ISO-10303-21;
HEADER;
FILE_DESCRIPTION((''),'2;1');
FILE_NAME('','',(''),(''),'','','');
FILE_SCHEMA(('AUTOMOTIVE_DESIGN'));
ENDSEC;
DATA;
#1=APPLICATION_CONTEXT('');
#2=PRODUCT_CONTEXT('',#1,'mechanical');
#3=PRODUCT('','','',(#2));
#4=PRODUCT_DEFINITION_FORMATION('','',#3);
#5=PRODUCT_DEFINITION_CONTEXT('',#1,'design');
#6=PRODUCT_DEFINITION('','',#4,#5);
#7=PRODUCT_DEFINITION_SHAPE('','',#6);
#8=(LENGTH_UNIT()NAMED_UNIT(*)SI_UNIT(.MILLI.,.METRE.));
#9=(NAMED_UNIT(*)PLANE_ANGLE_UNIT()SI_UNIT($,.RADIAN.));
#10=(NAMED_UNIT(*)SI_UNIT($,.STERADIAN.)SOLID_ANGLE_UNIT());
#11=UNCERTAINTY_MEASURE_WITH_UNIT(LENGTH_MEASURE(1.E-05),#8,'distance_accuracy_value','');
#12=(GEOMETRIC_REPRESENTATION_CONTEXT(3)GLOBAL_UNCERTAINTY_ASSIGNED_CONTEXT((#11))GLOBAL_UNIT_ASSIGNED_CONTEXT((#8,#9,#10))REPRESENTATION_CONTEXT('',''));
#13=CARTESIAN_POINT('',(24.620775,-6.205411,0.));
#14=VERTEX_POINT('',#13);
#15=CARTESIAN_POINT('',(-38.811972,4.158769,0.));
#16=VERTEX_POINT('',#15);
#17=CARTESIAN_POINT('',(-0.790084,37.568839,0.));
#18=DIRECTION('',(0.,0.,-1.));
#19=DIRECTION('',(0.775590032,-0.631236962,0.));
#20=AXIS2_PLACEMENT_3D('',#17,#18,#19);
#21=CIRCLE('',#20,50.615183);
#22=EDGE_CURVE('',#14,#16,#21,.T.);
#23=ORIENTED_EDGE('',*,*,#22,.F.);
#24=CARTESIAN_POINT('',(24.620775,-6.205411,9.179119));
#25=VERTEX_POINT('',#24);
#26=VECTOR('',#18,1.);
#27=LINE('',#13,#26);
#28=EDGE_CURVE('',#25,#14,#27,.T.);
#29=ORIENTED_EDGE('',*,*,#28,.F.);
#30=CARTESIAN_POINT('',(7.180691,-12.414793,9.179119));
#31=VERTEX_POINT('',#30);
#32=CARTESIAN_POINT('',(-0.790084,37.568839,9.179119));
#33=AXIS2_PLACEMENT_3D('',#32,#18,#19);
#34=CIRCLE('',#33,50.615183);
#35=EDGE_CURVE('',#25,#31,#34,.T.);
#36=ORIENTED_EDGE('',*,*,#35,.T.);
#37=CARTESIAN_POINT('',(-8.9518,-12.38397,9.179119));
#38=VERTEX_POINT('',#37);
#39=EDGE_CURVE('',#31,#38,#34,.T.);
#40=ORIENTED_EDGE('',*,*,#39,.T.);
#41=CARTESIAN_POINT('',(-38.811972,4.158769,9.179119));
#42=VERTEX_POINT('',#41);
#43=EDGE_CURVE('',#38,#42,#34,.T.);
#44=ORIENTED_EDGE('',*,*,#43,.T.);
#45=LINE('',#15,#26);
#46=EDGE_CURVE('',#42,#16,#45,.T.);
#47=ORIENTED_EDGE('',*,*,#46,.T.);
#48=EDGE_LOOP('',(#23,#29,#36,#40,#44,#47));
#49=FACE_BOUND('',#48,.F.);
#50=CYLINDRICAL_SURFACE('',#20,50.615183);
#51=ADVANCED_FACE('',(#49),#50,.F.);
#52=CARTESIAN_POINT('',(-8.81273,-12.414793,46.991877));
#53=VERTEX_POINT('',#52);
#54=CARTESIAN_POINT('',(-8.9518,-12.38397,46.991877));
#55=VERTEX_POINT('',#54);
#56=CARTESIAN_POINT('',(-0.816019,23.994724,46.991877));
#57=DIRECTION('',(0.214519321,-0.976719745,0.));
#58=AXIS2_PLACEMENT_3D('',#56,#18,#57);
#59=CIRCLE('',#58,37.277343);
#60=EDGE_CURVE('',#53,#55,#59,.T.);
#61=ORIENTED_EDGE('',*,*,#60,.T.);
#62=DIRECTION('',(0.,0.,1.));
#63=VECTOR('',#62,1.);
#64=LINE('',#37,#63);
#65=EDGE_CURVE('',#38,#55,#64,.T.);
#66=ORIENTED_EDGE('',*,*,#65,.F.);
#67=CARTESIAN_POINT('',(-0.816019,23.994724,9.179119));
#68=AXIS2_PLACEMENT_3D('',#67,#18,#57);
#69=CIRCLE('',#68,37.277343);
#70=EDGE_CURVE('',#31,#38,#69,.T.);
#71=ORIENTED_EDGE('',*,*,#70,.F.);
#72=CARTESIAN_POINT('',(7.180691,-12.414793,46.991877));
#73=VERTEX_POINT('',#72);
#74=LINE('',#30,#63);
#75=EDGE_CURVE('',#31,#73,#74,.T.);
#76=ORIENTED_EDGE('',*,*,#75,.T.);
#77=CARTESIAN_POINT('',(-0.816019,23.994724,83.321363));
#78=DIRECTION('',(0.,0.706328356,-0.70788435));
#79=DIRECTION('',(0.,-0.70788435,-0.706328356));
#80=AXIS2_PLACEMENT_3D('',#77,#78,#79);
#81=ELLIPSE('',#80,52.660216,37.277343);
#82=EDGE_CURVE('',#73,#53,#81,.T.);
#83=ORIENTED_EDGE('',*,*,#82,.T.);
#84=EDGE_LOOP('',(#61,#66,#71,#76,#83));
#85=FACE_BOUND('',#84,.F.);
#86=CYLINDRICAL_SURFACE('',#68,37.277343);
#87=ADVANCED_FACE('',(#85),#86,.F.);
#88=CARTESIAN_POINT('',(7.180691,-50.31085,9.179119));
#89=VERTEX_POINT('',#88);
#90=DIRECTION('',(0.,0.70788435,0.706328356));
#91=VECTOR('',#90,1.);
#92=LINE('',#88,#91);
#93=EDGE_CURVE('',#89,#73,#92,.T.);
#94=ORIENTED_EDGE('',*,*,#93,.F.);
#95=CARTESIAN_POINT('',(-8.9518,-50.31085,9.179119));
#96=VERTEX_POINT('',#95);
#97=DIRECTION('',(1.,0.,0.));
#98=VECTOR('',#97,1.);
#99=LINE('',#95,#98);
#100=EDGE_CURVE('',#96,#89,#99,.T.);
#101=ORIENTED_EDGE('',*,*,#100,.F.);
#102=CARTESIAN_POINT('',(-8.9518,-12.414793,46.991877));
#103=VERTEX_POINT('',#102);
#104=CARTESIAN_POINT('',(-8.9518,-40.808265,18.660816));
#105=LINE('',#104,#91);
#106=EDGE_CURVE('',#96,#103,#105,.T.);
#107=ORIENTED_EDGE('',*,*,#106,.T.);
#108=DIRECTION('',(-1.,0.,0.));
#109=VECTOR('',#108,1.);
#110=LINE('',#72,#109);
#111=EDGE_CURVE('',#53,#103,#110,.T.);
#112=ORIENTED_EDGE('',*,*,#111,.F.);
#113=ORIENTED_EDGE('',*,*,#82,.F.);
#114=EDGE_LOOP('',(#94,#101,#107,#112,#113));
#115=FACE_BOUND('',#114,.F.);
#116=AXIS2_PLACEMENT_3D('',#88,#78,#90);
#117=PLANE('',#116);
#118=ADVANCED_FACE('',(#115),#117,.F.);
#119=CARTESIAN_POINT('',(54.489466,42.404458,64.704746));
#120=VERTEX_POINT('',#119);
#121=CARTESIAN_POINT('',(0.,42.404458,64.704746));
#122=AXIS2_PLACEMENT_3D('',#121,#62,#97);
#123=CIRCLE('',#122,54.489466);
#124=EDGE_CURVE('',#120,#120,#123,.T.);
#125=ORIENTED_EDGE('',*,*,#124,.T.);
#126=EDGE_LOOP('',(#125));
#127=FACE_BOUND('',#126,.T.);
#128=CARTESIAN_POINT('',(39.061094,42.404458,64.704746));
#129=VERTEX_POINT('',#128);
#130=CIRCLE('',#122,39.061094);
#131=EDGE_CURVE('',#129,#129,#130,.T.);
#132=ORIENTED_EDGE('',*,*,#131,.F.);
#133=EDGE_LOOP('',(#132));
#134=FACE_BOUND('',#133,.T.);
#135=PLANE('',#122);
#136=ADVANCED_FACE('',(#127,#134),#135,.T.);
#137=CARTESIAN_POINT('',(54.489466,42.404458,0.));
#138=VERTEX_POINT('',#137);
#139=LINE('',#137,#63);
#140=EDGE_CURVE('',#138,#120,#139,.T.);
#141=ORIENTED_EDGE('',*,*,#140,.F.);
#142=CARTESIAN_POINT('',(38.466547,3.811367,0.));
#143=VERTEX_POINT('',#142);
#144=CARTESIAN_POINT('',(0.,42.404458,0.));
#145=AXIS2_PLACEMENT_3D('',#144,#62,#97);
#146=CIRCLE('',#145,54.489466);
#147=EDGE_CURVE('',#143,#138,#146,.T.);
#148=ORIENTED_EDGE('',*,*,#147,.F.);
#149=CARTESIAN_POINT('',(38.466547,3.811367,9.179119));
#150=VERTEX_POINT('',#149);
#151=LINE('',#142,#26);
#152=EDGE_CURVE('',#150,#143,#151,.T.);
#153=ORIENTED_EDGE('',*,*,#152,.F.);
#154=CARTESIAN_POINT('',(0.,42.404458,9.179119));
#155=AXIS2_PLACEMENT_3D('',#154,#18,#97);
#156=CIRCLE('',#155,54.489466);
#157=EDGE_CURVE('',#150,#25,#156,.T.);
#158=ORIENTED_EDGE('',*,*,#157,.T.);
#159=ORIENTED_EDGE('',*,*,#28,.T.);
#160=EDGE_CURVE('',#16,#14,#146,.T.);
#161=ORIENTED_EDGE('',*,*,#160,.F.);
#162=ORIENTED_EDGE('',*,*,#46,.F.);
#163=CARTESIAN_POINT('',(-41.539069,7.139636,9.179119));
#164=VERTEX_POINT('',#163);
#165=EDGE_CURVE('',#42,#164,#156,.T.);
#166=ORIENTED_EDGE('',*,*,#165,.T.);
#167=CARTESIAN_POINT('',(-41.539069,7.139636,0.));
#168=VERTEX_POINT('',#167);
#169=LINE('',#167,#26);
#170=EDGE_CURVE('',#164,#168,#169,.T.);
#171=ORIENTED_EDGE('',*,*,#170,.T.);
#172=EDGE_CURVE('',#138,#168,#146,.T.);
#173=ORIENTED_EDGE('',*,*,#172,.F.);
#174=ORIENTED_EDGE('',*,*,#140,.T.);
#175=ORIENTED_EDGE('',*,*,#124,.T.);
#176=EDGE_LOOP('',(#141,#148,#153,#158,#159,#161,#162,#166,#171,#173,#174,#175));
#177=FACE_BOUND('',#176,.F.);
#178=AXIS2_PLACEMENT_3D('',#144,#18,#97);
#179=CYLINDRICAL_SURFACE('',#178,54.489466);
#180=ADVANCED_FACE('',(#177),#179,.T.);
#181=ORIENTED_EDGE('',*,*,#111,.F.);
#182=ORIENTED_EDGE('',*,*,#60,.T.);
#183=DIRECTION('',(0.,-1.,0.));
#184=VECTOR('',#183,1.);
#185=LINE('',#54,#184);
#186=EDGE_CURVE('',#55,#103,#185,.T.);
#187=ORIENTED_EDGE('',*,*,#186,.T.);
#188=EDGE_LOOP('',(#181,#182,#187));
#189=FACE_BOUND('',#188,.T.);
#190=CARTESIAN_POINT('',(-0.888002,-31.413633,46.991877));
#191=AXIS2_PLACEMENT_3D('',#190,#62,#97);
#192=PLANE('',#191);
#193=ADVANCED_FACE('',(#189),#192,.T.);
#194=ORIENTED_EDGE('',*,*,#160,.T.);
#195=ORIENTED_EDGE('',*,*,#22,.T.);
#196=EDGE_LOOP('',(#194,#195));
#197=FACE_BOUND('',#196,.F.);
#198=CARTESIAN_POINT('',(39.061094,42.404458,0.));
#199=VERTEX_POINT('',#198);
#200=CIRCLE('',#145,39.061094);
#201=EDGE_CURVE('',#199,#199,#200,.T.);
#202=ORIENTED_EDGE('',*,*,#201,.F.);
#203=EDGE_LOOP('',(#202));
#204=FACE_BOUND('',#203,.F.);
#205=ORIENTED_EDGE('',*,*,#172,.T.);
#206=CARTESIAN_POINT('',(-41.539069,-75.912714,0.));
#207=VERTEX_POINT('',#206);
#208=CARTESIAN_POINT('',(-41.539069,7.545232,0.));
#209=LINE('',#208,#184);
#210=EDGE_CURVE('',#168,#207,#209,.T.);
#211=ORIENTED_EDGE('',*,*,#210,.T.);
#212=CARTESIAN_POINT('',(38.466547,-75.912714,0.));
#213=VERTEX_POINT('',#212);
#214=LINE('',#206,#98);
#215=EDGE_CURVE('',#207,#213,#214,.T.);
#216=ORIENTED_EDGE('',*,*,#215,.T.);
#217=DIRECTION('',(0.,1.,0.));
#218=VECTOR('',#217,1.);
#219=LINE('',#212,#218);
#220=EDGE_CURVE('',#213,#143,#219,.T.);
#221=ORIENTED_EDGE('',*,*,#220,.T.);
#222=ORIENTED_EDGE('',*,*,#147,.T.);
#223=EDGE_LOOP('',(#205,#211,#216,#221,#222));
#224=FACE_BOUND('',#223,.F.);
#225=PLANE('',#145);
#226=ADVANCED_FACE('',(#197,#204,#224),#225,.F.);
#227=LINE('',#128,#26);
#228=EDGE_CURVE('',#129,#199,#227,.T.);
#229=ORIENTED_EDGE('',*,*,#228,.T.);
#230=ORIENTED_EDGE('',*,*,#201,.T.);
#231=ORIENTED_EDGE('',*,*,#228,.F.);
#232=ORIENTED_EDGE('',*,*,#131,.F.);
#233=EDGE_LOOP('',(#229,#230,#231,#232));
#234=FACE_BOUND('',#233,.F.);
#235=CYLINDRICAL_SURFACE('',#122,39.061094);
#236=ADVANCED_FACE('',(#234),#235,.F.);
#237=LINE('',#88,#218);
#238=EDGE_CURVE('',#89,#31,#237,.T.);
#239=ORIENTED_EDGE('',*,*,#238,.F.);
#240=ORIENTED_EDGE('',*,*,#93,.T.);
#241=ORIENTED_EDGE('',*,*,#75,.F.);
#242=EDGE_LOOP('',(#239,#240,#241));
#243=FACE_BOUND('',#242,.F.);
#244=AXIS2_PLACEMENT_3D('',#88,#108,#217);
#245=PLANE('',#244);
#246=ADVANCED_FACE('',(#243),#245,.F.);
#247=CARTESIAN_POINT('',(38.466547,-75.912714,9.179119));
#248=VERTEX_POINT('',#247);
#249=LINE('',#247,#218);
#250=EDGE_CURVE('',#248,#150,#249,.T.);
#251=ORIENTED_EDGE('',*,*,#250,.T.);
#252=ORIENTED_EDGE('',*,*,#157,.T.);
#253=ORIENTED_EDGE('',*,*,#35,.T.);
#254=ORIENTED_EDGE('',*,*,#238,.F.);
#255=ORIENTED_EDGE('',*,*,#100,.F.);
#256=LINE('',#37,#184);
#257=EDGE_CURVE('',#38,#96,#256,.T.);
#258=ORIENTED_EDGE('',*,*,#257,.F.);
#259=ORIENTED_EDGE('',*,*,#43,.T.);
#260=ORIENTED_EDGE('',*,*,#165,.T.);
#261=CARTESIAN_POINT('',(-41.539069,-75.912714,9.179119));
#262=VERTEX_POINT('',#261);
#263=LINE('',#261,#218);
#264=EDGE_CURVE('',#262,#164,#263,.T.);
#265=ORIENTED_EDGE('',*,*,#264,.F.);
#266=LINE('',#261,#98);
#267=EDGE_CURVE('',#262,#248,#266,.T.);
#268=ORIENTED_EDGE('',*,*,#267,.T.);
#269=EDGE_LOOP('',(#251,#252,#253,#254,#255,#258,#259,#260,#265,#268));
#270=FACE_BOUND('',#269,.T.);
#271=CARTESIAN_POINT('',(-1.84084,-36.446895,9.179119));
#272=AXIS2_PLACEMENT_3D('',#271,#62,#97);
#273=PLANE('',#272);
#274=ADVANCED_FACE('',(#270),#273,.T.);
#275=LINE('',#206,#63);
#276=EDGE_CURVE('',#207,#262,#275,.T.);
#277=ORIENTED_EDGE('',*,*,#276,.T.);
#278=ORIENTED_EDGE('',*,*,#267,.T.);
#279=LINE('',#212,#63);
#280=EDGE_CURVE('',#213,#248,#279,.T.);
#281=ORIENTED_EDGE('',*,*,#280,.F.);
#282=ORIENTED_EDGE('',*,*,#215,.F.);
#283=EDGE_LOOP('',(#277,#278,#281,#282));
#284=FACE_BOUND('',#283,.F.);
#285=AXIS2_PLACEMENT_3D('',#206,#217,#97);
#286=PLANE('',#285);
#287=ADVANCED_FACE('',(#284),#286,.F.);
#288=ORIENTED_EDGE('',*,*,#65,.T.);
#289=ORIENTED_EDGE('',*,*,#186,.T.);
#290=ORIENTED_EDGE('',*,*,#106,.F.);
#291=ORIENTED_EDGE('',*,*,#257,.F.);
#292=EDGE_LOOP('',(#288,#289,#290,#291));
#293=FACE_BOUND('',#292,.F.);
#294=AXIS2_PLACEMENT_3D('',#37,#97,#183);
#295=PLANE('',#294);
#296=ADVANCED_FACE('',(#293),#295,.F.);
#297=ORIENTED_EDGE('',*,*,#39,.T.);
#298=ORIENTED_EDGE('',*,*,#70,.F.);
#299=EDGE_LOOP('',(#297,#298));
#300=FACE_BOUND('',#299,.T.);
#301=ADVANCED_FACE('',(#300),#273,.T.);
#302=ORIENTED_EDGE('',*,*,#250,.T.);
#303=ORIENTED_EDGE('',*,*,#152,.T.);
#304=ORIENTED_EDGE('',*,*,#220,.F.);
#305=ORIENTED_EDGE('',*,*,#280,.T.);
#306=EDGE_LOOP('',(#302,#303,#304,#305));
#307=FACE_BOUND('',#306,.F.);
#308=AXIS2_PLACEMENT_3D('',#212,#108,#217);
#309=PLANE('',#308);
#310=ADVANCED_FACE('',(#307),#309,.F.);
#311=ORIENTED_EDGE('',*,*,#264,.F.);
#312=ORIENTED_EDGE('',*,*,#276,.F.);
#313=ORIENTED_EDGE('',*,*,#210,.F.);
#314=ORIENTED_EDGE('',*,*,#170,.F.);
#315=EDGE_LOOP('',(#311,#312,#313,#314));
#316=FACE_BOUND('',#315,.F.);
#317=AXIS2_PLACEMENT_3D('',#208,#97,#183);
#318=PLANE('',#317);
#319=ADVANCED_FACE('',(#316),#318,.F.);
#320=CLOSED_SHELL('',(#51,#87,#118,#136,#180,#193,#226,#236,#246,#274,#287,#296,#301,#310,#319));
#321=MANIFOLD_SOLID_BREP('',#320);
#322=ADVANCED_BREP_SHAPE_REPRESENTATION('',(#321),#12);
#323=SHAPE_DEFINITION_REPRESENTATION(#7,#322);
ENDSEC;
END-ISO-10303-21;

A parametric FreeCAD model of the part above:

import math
import FreeCAD as App
import Part
import Sketcher

doc = App.newDocument("Part")
params = doc.addObject("Spreadsheet::Sheet", "Params")
for row, (alias, value) in enumerate([
    ("pad1_length", "64.704746 mm"),
    ("pad2_length", "9.179119 mm"),
    ("pad3_length", "37.812758 mm"),
], start=1):
    params.set(f"A{row}", alias)
    params.set(f"B{row}", "=" + value)
    params.setAlias(f"B{row}", alias)

body = doc.addObject("PartDesign::Body", "Body")

sketch1 = body.newObject("Sketcher::SketchObject", "Sketch")
sketch1.AttachmentSupport = (doc.getObject("XY_Plane"), [""])
sketch1.MapMode = "FlatFace"
sketch1.addGeometry(Part.Circle(App.Vector(0, 42, 0), App.Vector(0, 0, 1), 54), False)
sketch1.addConstraint([
    Sketcher.Constraint("PointOnObject", 0, 3, -2),
    Sketcher.Constraint("Diameter", 0, 108.978932),
    Sketcher.Constraint("DistanceY", -1, 1, 0, 3, 42.404458),
])
pad1 = body.newObject("PartDesign::Pad", "Pad")
pad1.Profile = sketch1
pad1.setExpression("Length", "Params.pad1_length")

sketch2 = body.newObject("Sketcher::SketchObject", "Sketch001")
sketch2.AttachmentSupport = (doc.getObject("XY_Plane"), [""])
sketch2.MapMode = "FlatFace"
sketch2.AttachmentOffset = App.Placement(App.Vector(0, 0, 64.704746), App.Rotation())
sketch2.addGeometry(Part.Circle(App.Vector(0, 42, 0), App.Vector(0, 0, 1), 39), False)
sketch2.addConstraint([
    Sketcher.Constraint("PointOnObject", 0, 3, -2),
    Sketcher.Constraint("Diameter", 0, 78.122188),
    Sketcher.Constraint("DistanceY", -1, 1, 0, 3, 42.404458),
])
pocket1 = body.newObject("PartDesign::Pocket", "Pocket")
pocket1.Profile = sketch2
pocket1.Type = "ThroughAll"

sketch3 = body.newObject("Sketcher::SketchObject", "Sketch002")
sketch3.AttachmentSupport = (doc.getObject("XY_Plane"), [""])
sketch3.MapMode = "FlatFace"
sketch3.addGeometry([
    Part.ArcOfCircle(Part.Circle(App.Vector(-1, 38, 0), App.Vector(0, 0, 1), 51), math.radians(-144), math.radians(-39)),
    Part.LineSegment(App.Vector(-42, 8, 0), App.Vector(-42, -76, 0)),
    Part.LineSegment(App.Vector(-42, -76, 0), App.Vector(38, -76, 0)),
    Part.LineSegment(App.Vector(38, -76, 0), App.Vector(38, 6, 0)),
], False)
sketch3.addConstraint([
    Sketcher.Constraint("Coincident", 0, 1, 1, 1),
    Sketcher.Constraint("Coincident", 1, 2, 2, 1),
    Sketcher.Constraint("Coincident", 2, 2, 3, 1),
    Sketcher.Constraint("Coincident", 3, 2, 0, 2),
    Sketcher.Constraint("Vertical", 1),
    Sketcher.Constraint("Horizontal", 2),
    Sketcher.Constraint("Vertical", 3),
    Sketcher.Constraint("Radius", 0, 50.615183),
    Sketcher.Constraint("DistanceY", 3, 1, 3, 2, 81.531379),
    Sketcher.Constraint("DistanceX", 2, 1, 2, 2, 80.005616),
    Sketcher.Constraint("DistanceY", 1, 2, 1, 1, 83.457946),
    Sketcher.Constraint("DistanceY", -1, 1, 0, 3, 37.568839),
    Sketcher.Constraint("DistanceX", 0, 1, -1, 1, 41.539069),
])
pad2 = body.newObject("PartDesign::Pad", "Pad001")
pad2.Profile = sketch3
pad2.setExpression("Length", "Params.pad2_length")

sketch4 = body.newObject("Sketcher::SketchObject", "Sketch003")
sketch4.AttachmentSupport = (doc.getObject("XY_Plane"), [""])
sketch4.MapMode = "FlatFace"
sketch4.AttachmentOffset = App.Placement(App.Vector(0, 0, 9.179119), App.Rotation())
sketch4.addGeometry([
    Part.ArcOfCircle(Part.Circle(App.Vector(-1, 24, 0), App.Vector(0, 0, 1), 37), math.radians(-103), math.radians(-78)),
    Part.LineSegment(App.Vector(-9, -12, 0), App.Vector(-9, -50, 0)),
    Part.LineSegment(App.Vector(-9, -50, 0), App.Vector(7, -50, 0)),
    Part.LineSegment(App.Vector(7, -50, 0), App.Vector(7, -12, 0)),
], False)
sketch4.addConstraint([
    Sketcher.Constraint("Coincident", 0, 1, 1, 1),
    Sketcher.Constraint("Coincident", 1, 2, 2, 1),
    Sketcher.Constraint("Coincident", 2, 2, 3, 1),
    Sketcher.Constraint("Coincident", 3, 2, 0, 2),
    Sketcher.Constraint("Vertical", 1),
    Sketcher.Constraint("Horizontal", 2),
    Sketcher.Constraint("Vertical", 3),
    Sketcher.Constraint("Radius", 0, 37.277343),
    Sketcher.Constraint("DistanceX", 2, 1, 2, 2, 16.132491),
    Sketcher.Constraint("DistanceY", 1, 2, 1, 1, 37.92688),
    Sketcher.Constraint("DistanceX", 0, 1, -1, 1, 8.9518),
    Sketcher.Constraint("DistanceY", 3, 1, 3, 2, 37.896057),
    Sketcher.Constraint("DistanceY", 0, 1, -1, 1, 12.38397),
])
pad3 = body.newObject("PartDesign::Pad", "Pad002")
pad3.Profile = sketch4
pad3.setExpression("Length", "Params.pad3_length")

sketch5 = body.newObject("Sketcher::SketchObject", "Sketch004")
sketch5.AttachmentSupport = (doc.getObject("YZ_Plane"), [""])
sketch5.MapMode = "FlatFace"
sketch5.AttachmentOffset = App.Placement(App.Vector(0, 0, 7.180691), App.Rotation())
sketch5.addGeometry([
    Part.LineSegment(App.Vector(-50, 9, 0), App.Vector(-12, 47, 0)),
    Part.LineSegment(App.Vector(-12, 47, 0), App.Vector(-50, 47, 0)),
    Part.LineSegment(App.Vector(-50, 47, 0), App.Vector(-50, 9, 0)),
], False)
sketch5.addConstraint([
    Sketcher.Constraint("Coincident", 0, 2, 1, 1),
    Sketcher.Constraint("Coincident", 1, 2, 2, 1),
    Sketcher.Constraint("Coincident", 2, 2, 0, 1),
    Sketcher.Constraint("Horizontal", 1),
    Sketcher.Constraint("Vertical", 2),
    Sketcher.Constraint("DistanceY", 2, 2, 2, 1, 37.812758),
    Sketcher.Constraint("Distance", 0, 53.534249),
    Sketcher.Constraint("DistanceX", 1, 2, -1, 1, 50.31085),
    Sketcher.Constraint("DistanceY", -1, 1, 2, 2, 9.179119),
])
pocket2 = body.newObject("PartDesign::Pocket", "Pocket001")
pocket2.Profile = sketch5
pocket2.Type = "ThroughAll"

doc.recompute()
